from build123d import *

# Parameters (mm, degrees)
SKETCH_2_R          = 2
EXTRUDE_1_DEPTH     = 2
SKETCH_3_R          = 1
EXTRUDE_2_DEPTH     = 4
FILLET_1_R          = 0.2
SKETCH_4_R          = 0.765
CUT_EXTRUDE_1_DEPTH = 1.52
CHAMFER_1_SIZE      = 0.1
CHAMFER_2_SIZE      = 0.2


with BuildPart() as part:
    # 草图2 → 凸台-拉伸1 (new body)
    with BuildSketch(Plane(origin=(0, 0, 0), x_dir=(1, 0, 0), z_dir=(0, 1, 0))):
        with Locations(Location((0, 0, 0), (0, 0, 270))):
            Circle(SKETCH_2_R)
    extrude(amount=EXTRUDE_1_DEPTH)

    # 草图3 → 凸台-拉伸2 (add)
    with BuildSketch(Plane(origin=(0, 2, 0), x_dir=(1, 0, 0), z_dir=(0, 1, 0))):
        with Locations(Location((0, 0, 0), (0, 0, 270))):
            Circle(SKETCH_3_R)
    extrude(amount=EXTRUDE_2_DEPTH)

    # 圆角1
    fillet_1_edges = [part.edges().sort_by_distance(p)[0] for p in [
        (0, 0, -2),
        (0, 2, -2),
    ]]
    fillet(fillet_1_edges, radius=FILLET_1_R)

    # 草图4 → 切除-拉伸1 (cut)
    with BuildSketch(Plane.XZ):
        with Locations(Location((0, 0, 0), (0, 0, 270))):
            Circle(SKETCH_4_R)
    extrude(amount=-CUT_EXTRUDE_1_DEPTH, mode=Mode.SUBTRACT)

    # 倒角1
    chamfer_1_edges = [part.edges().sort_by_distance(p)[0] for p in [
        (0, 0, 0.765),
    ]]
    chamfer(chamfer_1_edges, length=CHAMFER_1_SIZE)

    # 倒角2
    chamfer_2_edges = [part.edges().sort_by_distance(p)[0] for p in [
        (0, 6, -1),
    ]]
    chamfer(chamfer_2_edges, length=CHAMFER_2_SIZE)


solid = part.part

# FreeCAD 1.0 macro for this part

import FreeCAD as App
import Part
import Sketcher
from FreeCAD import Vector


def edges_at(feature, points):
    """Names of the edges that pass closest to the given points."""
    edges = feature.Shape.Edges
    near = lambda p: min(range(len(edges)), key=lambda i: edges[i].distToShape(Part.Vertex(*p))[0])
    return sorted({f"Edge{near(p) + 1}" for p in points})

doc = App.newDocument("Part")
body = doc.addObject("PartDesign::Body", "Body")

sketch1 = body.newObject("Sketcher::SketchObject", "Sketch")
sketch1.AttachmentSupport = (doc.getObject("XZ_Plane"), [""])
sketch1.MapMode = "FlatFace"
sketch1.addGeometry(Part.Circle(Vector(0, 0, 0), Vector(0, 0, 1), 2), False)
sketch1.addConstraint([
    Sketcher.Constraint("Coincident", 0, 3, -1, 1),
    Sketcher.Constraint("Diameter", 0, 4.0),
])
pad1 = body.newObject("PartDesign::Pad", "Pad")
pad1.Profile = sketch1
pad1.Length = 2
pad1.Reversed = True

sketch2 = body.newObject("Sketcher::SketchObject", "Sketch001")
sketch2.AttachmentSupport = (doc.getObject("XZ_Plane"), [""])
sketch2.MapMode = "FlatFace"
sketch2.AttachmentOffset = App.Placement(Vector(0, 0, -2), App.Rotation())
sketch2.addGeometry(Part.Circle(Vector(0, 0, 0), Vector(0, 0, 1), 1), False)
sketch2.addConstraint([
    Sketcher.Constraint("Coincident", 0, 3, -1, 1),
    Sketcher.Constraint("Diameter", 0, 2.0),
])
pad2 = body.newObject("PartDesign::Pad", "Pad001")
pad2.Profile = sketch2
pad2.Length = 4
pad2.Reversed = True
doc.recompute()

fillet = body.newObject("PartDesign::Fillet", "Fillet")
fillet.Base = (pad2, edges_at(pad2, [(0, 0, -2), (0, 2, -2)]))
fillet.Radius = 0.2

sketch3 = body.newObject("Sketcher::SketchObject", "Sketch002")
sketch3.AttachmentSupport = (doc.getObject("XZ_Plane"), [""])
sketch3.MapMode = "FlatFace"
sketch3.addGeometry(Part.Circle(Vector(0, 0, 0), Vector(0, 0, 1), 0.8), False)
sketch3.addConstraint([
    Sketcher.Constraint("Coincident", 0, 3, -1, 1),
    Sketcher.Constraint("Diameter", 0, 1.53),
])
pocket1 = body.newObject("PartDesign::Pocket", "Pocket")
pocket1.Profile = sketch3
pocket1.Length = 1.52
doc.recompute()

chamfer = body.newObject("PartDesign::Chamfer", "Chamfer")
chamfer.Base = (pocket1, edges_at(pocket1, [(0, 0, 0.765)]))
chamfer.Size = 0.1
doc.recompute()

chamfer2 = body.newObject("PartDesign::Chamfer", "Chamfer001")
chamfer2.Base = (chamfer, edges_at(chamfer, [(0, 6, -1)]))
chamfer2.Size = 0.2

doc.recompute()
